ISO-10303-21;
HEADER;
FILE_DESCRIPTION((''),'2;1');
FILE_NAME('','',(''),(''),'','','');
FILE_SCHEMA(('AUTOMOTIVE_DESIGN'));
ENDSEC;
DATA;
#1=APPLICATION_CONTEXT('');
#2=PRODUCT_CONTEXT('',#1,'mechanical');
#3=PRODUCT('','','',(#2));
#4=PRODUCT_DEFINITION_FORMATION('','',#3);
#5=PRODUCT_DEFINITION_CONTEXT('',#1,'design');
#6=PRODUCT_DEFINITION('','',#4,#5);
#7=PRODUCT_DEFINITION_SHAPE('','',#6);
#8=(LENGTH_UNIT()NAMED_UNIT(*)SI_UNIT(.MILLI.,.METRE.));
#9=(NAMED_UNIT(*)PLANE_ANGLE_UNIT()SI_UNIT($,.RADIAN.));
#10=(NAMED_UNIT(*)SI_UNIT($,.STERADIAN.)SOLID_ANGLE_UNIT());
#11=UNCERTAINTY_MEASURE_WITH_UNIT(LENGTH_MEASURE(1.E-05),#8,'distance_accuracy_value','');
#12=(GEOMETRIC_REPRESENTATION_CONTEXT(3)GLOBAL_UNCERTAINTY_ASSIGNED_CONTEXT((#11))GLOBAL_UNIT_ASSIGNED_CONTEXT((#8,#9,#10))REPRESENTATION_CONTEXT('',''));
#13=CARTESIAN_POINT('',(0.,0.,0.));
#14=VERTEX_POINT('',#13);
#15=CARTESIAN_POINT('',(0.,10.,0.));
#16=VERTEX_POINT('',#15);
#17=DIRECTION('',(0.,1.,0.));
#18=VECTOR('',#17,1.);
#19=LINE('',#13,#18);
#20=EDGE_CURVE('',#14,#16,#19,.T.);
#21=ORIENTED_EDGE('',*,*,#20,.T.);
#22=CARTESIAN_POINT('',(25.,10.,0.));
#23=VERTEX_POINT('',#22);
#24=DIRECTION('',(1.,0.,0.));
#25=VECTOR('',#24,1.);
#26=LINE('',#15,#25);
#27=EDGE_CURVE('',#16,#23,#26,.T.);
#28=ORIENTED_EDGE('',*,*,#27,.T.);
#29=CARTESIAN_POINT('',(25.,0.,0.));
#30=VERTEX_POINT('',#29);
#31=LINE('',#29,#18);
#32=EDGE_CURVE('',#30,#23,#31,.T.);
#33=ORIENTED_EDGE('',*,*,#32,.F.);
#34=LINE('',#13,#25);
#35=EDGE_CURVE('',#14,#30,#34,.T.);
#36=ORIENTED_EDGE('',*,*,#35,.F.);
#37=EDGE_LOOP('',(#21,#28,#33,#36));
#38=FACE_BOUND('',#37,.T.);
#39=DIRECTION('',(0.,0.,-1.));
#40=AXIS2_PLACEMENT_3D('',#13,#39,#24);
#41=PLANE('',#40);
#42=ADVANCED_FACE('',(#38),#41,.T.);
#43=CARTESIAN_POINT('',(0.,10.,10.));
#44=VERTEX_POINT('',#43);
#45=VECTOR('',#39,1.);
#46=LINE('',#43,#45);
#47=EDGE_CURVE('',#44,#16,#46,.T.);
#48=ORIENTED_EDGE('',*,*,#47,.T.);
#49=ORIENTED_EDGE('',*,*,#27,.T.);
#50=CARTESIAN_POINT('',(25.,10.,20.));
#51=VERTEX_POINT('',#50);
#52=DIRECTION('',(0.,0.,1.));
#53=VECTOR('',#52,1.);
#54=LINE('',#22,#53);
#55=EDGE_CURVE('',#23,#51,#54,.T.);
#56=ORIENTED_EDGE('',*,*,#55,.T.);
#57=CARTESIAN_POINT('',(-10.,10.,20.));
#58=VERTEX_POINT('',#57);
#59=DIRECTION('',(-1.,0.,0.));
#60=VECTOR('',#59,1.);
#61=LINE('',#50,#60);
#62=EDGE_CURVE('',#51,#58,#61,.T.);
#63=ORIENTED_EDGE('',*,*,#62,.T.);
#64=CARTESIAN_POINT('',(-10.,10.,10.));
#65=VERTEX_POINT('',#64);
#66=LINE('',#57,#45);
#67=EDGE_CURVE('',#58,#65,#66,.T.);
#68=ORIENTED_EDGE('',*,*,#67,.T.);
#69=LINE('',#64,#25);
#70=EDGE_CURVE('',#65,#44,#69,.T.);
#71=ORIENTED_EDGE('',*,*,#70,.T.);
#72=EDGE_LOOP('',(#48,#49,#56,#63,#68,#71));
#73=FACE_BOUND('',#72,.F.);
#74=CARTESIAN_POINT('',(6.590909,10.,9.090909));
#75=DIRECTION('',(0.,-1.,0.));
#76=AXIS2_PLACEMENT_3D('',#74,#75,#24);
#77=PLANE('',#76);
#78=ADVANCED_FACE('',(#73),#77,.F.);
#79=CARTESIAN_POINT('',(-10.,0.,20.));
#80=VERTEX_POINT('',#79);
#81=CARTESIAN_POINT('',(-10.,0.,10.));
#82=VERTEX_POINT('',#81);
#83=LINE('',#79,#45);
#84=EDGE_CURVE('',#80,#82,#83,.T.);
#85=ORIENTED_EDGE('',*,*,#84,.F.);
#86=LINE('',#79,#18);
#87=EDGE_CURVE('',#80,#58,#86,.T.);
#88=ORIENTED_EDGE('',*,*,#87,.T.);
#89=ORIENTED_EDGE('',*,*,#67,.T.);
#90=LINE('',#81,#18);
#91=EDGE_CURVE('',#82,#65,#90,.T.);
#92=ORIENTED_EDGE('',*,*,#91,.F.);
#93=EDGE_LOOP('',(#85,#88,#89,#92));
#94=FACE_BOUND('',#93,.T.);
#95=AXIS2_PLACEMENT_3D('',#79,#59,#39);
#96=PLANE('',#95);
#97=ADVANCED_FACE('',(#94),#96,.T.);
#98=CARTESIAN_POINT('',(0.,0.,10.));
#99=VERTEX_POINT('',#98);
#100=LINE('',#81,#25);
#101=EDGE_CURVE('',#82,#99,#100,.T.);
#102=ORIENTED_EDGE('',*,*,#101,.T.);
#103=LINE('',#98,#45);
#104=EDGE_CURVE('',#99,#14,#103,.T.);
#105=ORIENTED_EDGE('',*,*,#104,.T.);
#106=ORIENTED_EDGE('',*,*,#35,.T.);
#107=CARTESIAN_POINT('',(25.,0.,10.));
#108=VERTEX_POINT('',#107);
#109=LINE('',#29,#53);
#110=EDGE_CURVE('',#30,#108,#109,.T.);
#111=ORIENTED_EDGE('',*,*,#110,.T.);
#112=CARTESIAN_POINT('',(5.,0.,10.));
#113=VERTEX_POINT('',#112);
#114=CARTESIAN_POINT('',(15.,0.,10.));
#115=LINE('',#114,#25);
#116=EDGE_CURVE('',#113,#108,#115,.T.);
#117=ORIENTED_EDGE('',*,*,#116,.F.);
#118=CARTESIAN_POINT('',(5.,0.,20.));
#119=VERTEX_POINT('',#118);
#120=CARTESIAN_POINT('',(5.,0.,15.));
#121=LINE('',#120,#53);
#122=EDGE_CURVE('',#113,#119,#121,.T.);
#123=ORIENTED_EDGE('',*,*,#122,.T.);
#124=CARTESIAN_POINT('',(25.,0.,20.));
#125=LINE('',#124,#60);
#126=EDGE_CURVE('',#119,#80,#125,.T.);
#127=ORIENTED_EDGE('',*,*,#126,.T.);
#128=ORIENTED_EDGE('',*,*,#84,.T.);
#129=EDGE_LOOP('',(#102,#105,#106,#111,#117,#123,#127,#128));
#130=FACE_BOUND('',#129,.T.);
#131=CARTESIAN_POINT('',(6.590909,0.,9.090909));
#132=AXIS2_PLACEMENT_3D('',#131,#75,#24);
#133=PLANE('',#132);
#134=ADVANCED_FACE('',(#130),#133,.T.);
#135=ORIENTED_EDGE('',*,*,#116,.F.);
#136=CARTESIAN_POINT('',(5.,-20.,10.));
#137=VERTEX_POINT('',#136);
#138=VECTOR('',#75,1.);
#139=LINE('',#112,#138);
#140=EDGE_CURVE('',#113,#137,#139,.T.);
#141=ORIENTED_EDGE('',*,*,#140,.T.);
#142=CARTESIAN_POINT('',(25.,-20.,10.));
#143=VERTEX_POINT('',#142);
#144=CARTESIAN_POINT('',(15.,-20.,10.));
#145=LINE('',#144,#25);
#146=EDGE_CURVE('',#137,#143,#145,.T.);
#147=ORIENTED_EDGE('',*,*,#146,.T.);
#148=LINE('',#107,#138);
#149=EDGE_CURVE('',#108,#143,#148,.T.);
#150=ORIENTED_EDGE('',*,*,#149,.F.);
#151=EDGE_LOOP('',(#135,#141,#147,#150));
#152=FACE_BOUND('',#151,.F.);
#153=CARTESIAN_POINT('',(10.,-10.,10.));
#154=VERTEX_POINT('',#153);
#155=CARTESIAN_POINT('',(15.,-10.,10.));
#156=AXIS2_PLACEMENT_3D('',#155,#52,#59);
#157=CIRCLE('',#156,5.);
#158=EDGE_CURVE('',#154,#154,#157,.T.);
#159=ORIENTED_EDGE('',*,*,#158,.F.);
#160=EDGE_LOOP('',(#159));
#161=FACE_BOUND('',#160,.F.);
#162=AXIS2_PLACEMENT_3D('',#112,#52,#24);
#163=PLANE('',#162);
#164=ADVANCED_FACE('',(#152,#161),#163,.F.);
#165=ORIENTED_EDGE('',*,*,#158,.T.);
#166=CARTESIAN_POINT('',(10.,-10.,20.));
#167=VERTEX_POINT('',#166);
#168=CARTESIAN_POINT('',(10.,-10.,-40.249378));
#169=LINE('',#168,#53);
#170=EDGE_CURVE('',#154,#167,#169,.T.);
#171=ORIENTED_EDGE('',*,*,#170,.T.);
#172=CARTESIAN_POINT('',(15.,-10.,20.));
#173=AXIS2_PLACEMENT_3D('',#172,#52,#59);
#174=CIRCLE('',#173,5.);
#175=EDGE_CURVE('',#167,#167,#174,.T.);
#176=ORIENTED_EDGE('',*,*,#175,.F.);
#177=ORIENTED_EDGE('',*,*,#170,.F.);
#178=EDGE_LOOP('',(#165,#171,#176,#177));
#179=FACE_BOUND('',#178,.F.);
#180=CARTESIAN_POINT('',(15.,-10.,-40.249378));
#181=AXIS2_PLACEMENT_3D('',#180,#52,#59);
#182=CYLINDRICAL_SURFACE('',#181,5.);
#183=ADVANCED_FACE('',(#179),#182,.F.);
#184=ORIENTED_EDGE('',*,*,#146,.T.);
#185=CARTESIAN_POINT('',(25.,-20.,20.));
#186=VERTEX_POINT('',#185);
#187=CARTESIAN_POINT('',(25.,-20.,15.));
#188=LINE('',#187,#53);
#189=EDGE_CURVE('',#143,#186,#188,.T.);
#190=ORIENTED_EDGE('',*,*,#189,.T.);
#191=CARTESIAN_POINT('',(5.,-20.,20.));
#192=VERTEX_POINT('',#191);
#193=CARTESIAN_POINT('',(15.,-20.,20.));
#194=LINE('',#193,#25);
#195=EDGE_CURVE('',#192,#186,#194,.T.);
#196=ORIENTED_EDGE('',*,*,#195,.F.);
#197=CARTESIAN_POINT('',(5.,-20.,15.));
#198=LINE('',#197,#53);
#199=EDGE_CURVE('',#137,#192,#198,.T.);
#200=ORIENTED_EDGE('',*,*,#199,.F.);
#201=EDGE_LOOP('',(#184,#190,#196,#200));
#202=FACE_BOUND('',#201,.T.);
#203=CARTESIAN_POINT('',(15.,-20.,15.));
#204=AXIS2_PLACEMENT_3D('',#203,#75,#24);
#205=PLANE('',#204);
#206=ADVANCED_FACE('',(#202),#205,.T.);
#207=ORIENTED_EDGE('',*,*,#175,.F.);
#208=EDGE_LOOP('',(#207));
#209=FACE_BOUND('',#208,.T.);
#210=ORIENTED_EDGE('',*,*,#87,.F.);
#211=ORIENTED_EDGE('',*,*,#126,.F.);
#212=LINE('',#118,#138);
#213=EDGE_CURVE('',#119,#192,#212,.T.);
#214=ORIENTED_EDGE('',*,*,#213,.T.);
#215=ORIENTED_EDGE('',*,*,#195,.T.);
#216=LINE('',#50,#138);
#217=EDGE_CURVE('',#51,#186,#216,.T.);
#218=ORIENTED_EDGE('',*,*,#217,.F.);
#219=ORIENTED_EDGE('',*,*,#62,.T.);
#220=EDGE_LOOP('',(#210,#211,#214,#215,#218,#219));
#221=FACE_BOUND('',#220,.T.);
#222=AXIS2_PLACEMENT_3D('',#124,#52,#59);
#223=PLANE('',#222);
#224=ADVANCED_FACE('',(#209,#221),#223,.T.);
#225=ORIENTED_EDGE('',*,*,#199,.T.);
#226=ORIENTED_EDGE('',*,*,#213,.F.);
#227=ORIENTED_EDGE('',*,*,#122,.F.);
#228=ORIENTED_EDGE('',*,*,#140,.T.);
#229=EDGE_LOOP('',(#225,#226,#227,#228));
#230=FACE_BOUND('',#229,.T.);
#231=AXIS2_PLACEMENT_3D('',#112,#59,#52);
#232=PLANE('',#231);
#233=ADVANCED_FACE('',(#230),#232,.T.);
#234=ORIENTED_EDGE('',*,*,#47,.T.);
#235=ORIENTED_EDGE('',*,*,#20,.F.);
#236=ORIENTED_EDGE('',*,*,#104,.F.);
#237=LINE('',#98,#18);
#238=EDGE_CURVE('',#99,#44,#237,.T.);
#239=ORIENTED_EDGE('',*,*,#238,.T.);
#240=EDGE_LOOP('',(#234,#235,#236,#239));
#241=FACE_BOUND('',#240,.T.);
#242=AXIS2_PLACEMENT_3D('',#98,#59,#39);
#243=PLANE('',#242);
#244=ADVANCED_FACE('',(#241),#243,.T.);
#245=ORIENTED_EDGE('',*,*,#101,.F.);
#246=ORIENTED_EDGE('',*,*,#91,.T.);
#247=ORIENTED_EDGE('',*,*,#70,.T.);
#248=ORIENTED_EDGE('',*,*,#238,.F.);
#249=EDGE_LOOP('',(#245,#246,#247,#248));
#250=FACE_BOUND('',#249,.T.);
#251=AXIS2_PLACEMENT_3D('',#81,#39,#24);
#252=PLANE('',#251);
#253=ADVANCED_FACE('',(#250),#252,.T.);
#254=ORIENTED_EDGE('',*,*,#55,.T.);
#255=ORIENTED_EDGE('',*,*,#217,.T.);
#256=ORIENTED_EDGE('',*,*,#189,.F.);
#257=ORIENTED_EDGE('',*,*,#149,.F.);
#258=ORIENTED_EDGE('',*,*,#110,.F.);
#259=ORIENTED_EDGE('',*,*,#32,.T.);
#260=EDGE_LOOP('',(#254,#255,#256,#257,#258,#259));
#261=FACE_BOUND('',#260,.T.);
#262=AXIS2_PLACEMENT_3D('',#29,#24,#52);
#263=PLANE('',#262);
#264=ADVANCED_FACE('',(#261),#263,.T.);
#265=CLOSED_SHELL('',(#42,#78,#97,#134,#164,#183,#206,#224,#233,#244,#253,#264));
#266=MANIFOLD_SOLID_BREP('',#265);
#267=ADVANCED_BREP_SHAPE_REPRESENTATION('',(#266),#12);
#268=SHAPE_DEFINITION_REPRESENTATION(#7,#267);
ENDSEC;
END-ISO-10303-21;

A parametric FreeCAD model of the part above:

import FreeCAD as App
import Part
import Sketcher
from FreeCAD import Vector

doc = App.newDocument("Part")
body = doc.addObject("PartDesign::Body", "Body")

# Sketch on XZ plane
sketch1 = body.newObject("Sketcher::SketchObject", "Sketch")
sketch1.AttachmentSupport = (doc.getObject("XZ_Plane"), [""])
sketch1.MapMode = "FlatFace"
sketch1.addGeometry(Part.LineSegment(Vector(5, 20, 0), Vector(5, 10, 0)), False)
sketch1.addGeometry(Part.LineSegment(Vector(5, 10, 0), Vector(25, 10, 0)), False)
sketch1.addGeometry(Part.LineSegment(Vector(25, 10, 0), Vector(25, 20, 0)), False)
sketch1.addGeometry(Part.LineSegment(Vector(25, 20, 0), Vector(5, 20, 0)), False)
sketch1.addConstraint(Sketcher.Constraint("Coincident", 0, 2, 1, 1))
sketch1.addConstraint(Sketcher.Constraint("Coincident", 1, 2, 2, 1))
sketch1.addConstraint(Sketcher.Constraint("Coincident", 2, 2, 3, 1))
sketch1.addConstraint(Sketcher.Constraint("Coincident", 3, 2, 0, 1))
sketch1.addConstraint(Sketcher.Constraint("Vertical", 0))
sketch1.addConstraint(Sketcher.Constraint("Horizontal", 1))
sketch1.addConstraint(Sketcher.Constraint("Vertical", 2))
sketch1.addConstraint(Sketcher.Constraint("Horizontal", 3))
sketch1.addConstraint(Sketcher.Constraint("DistanceX", 1, 1, 1, 2, 20.0))
sketch1.addConstraint(Sketcher.Constraint("DistanceY", 0, 2, 0, 1, 10.0))
sketch1.addConstraint(Sketcher.Constraint("DistanceX", -1, 1, 0, 2, 5.0))
sketch1.addConstraint(Sketcher.Constraint("DistanceY", -1, 1, 0, 2, 10.0))
pad1 = body.newObject("PartDesign::Pad", "Pad")
pad1.Profile = sketch1
pad1.Length = 20

# Sketch on XZ plane
sketch2 = body.newObject("Sketcher::SketchObject", "Sketch001")
sketch2.AttachmentSupport = (doc.getObject("XZ_Plane"), [""])
sketch2.MapMode = "FlatFace"
sketch2.addGeometry(Part.LineSegment(Vector(0, 10, 0), Vector(0, 0, 0)), False)
sketch2.addGeometry(Part.LineSegment(Vector(0, 0, 0), Vector(25, 0, 0)), False)
sketch2.addGeometry(Part.LineSegment(Vector(25, 0, 0), Vector(25, 20, 0)), False)
sketch2.addGeometry(Part.LineSegment(Vector(25, 20, 0), Vector(-10, 20, 0)), False)
sketch2.addGeometry(Part.LineSegment(Vector(-10, 20, 0), Vector(-10, 10, 0)), False)
sketch2.addGeometry(Part.LineSegment(Vector(-10, 10, 0), Vector(0, 10, 0)), False)
sketch2.addConstraint(Sketcher.Constraint("Coincident", 0, 2, 1, 1))
sketch2.addConstraint(Sketcher.Constraint("Coincident", 1, 2, 2, 1))
sketch2.addConstraint(Sketcher.Constraint("Coincident", 2, 2, 3, 1))
sketch2.addConstraint(Sketcher.Constraint("Coincident", 3, 2, 4, 1))
sketch2.addConstraint(Sketcher.Constraint("Coincident", 4, 2, 5, 1))
sketch2.addConstraint(Sketcher.Constraint("Coincident", 5, 2, 0, 1))
sketch2.addConstraint(Sketcher.Constraint("Vertical", 0))
sketch2.addConstraint(Sketcher.Constraint("Horizontal", 1))
sketch2.addConstraint(Sketcher.Constraint("Vertical", 2))
sketch2.addConstraint(Sketcher.Constraint("Horizontal", 3))
sketch2.addConstraint(Sketcher.Constraint("Vertical", 4))
sketch2.addConstraint(Sketcher.Constraint("Horizontal", 5))
sketch2.addConstraint(Sketcher.Constraint("Coincident", 0, 2, -1, 1))
sketch2.addConstraint(Sketcher.Constraint("Equal", 5, 0))
sketch2.addConstraint(Sketcher.Constraint("Equal", 0, 4))
sketch2.addConstraint(Sketcher.Constraint("DistanceX", 1, 1, 1, 2, 25.0))
sketch2.addConstraint(Sketcher.Constraint("DistanceX", 3, 2, 3, 1, 35.0))
pad2 = body.newObject("PartDesign::Pad", "Pad001")
pad2.Profile = sketch2
pad2.Length = 10
pad2.Reversed = True

# Sketch on XY plane
sketch3 = body.newObject("Sketcher::SketchObject", "Sketch002")
sketch3.AttachmentSupport = (doc.getObject("XY_Plane"), [""])
sketch3.MapMode = "FlatFace"
sketch3.AttachmentOffset = App.Placement(Vector(0, 0, 10), App.Rotation())
sketch3.addGeometry(Part.Circle(Vector(15, -10, 0), Vector(0, 0, 1), 5), False)
sketch3.addConstraint(Sketcher.Constraint("Diameter", 0, 10.0))
sketch3.addConstraint(Sketcher.Constraint("DistanceX", -1, 1, 0, 3, 15.0))
sketch3.addConstraint(Sketcher.Constraint("DistanceY", 0, 3, -1, 1, 10.0))
doc.recompute()
hole = body.newObject("PartDesign::Hole", "Hole")
hole.Profile = sketch3
hole.ThreadType = "None"
hole.Diameter = 10
hole.DepthType = "ThroughAll"
hole.Reversed = True

doc.recompute()
